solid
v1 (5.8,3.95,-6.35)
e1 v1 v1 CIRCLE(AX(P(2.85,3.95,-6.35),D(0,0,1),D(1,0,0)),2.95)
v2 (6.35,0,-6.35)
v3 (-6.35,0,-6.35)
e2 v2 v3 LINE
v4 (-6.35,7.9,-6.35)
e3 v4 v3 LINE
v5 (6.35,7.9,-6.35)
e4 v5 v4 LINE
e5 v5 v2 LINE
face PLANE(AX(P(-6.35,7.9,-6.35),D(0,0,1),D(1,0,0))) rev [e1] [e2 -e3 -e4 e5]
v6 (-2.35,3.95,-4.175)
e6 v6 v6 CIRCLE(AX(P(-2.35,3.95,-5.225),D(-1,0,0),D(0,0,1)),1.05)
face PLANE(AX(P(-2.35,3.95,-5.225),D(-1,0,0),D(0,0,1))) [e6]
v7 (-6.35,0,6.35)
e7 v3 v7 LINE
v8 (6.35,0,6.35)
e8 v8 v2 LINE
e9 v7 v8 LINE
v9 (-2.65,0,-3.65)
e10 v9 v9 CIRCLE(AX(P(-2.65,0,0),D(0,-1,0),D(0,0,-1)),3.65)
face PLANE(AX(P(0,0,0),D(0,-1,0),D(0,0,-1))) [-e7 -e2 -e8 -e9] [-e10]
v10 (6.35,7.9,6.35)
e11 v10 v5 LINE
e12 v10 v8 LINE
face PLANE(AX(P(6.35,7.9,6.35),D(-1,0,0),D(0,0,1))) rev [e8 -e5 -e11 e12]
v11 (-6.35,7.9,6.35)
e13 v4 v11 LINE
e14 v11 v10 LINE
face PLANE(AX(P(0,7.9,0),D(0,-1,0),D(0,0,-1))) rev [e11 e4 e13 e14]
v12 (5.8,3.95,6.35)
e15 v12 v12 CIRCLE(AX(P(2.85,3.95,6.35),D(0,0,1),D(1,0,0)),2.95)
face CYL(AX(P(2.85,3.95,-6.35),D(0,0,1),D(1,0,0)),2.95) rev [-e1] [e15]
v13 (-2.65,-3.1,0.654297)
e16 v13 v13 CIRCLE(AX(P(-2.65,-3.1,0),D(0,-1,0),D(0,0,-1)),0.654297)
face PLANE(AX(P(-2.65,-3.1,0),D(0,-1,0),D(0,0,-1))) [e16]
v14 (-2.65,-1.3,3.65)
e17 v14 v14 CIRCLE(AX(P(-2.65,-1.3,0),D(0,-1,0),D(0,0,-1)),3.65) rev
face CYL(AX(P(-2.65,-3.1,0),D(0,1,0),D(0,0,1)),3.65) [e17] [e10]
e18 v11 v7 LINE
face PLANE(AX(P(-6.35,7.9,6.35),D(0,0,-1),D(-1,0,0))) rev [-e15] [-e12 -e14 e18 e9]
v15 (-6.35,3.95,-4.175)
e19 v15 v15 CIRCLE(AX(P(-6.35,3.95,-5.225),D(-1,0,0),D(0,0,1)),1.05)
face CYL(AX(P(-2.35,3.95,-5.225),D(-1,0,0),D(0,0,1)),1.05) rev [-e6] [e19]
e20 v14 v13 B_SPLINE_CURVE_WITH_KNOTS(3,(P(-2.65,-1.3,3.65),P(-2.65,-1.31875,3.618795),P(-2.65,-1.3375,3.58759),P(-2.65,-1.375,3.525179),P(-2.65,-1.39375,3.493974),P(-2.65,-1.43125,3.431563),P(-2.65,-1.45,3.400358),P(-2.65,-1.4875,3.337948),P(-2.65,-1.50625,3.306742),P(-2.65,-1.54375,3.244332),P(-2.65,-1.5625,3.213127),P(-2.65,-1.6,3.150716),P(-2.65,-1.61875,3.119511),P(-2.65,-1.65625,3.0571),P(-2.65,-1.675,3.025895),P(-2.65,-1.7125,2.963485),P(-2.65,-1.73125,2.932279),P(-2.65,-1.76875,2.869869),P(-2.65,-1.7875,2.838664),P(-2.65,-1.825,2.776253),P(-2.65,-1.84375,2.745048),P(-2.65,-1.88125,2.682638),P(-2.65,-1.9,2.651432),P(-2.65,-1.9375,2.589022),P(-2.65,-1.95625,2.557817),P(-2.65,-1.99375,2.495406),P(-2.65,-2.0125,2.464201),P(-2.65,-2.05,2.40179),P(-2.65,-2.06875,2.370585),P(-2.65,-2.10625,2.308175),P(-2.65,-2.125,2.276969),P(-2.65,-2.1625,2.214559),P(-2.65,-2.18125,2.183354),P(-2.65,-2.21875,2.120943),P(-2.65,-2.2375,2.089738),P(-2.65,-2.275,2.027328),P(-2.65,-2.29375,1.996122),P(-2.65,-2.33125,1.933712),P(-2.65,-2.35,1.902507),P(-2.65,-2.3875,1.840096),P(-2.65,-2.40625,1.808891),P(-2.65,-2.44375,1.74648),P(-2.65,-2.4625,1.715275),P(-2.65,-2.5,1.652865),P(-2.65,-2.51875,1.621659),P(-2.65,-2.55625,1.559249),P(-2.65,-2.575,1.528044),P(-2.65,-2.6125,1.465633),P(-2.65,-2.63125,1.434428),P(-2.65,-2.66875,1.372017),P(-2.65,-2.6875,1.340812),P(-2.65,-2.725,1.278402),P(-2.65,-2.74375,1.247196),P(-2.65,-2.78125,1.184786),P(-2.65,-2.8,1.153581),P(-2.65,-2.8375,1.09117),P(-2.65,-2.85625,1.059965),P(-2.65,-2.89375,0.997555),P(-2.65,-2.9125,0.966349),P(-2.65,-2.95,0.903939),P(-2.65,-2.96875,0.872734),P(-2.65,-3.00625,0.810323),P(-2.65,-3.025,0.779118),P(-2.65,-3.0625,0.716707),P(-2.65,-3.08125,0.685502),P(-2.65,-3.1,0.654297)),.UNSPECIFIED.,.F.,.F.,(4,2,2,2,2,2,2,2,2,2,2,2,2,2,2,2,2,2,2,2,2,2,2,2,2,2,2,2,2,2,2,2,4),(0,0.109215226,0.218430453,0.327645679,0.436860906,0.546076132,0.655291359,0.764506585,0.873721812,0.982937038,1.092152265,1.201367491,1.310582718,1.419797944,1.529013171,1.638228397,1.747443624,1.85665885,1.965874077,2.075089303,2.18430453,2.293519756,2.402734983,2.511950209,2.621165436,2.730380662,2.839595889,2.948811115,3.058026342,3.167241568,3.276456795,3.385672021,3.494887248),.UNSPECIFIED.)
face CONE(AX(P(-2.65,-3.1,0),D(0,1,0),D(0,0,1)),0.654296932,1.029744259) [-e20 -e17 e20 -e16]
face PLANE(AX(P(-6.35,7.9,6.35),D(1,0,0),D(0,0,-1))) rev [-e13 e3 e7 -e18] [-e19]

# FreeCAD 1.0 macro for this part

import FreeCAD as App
import Part
import Sketcher

V = App.Vector
Q = App.Units.Quantity


def edges_at(feature, points):
    """Names of the edges that pass closest to the given points."""
    edges = feature.Shape.Edges
    near = lambda p: min(range(len(edges)), key=lambda i: edges[i].distToShape(Part.Vertex(*p))[0])
    return sorted({f"Edge{near(p) + 1}" for p in points})

doc = App.newDocument("Part")
body = doc.addObject("PartDesign::Body", "Body")

# Sketch on XZ plane
sketch1 = doc.addObject("Sketcher::SketchObject", "Sketch")
body.addObject(sketch1)
sketch1.AttachmentSupport = (doc.XZ_Plane, [""])
sketch1.MapMode = "FlatFace"
sketch1.addGeometry([
    Part.LineSegment(V(-6, -6, 0), V(-6, 6, 0)),
    Part.LineSegment(V(-6, 6, 0), V(6, 6, 0)),
    Part.LineSegment(V(6, 6, 0), V(6, -6, 0)),
    Part.LineSegment(V(6, -6, 0), V(-6, -6, 0)),
], False)
sketch1.addConstraint([
    Sketcher.Constraint("Coincident", 0, 2, 1, 1),
    Sketcher.Constraint("Coincident", 1, 2, 2, 1),
    Sketcher.Constraint("Coincident", 2, 2, 3, 1),
    Sketcher.Constraint("Coincident", 3, 2, 0, 1),
    Sketcher.Constraint("Vertical", 0),
    Sketcher.Constraint("Horizontal", 1),
    Sketcher.Constraint("Vertical", 2),
    Sketcher.Constraint("Horizontal", 3),
    Sketcher.Constraint("Symmetric", 0, 2, 2, 2, -1, 1),
    Sketcher.Constraint("Equal", 3, 0),
    Sketcher.Constraint("DistanceX", 1, 1, 1, 2, Q("12.7 mm")),
])
pad1 = doc.addObject("PartDesign::Pad", "Pad")
body.addObject(pad1)
pad1.Profile = sketch1
pad1.Length = 7.9
pad1.Reversed = True

# Sketch on XY plane
sketch2 = doc.addObject("Sketcher::SketchObject", "Sketch001")
body.addObject(sketch2)
sketch2.AttachmentSupport = (doc.XY_Plane, [""])
sketch2.MapMode = "FlatFace"
sketch2.AttachmentOffset = App.Placement(V(0, 0, 6.35), App.Rotation())
sketch2.addGeometry(Part.Circle(V(2.9, 4, 0), V(0, 0, 1), 3), False)
sketch2.addConstraint([
    Sketcher.Constraint("Diameter", 0, Q("5.9 mm")),
    Sketcher.Constraint("DistanceX", -1, 1, 0, 3, Q("2.85 mm")),
    Sketcher.Constraint("DistanceY", -1, 1, 0, 3, Q("3.95 mm")),
])
pocket1 = doc.addObject("PartDesign::Pocket", "Pocket")
body.addObject(pocket1)
pocket1.Profile = sketch2
pocket1.Type = "ThroughAll"

# Sketch on XZ plane
sketch3 = doc.addObject("Sketcher::SketchObject", "Sketch002")
body.addObject(sketch3)
sketch3.AttachmentSupport = (doc.XZ_Plane, [""])
sketch3.MapMode = "FlatFace"
sketch3.addGeometry(Part.Circle(V(-2.6, 0, 0), V(0, 0, 1), 3.6), False)
sketch3.addConstraint([
    Sketcher.Constraint("PointOnObject", 0, 3, -1),
    Sketcher.Constraint("Diameter", 0, Q("7.3 mm")),
    Sketcher.Constraint("DistanceX", 0, 3, -1, 1, Q("2.65 mm")),
])
pad2 = doc.addObject("PartDesign::Pad", "Pad001")
body.addObject(pad2)
pad2.Profile = sketch3
pad2.Length = 3.1
doc.recompute()

chamfer = doc.addObject("PartDesign::Chamfer", "Chamfer")
body.addObject(chamfer)
chamfer.Base = (pad2, edges_at(pad2, [(-2.65, -3.1, 3.65)]))
chamfer.ChamferType = "Two distances"
chamfer.Size = 1.8
chamfer.Size2 = 2.995703

# Sketch on YZ plane
sketch4 = doc.addObject("Sketcher::SketchObject", "Sketch003")
body.addObject(sketch4)
sketch4.AttachmentSupport = (doc.YZ_Plane, [""])
sketch4.MapMode = "FlatFace"
sketch4.AttachmentOffset = App.Placement(V(0, 0, -6.35), App.Rotation())
sketch4.addGeometry(Part.Circle(V(4, -5.2, 0), V(0, 0, 1), 1.1), False)
sketch4.addConstraint([
    Sketcher.Constraint("Diameter", 0, Q("2.1 mm")),
    Sketcher.Constraint("DistanceX", -1, 1, 0, 3, Q("3.95 mm")),
    Sketcher.Constraint("DistanceY", 0, 3, -1, 1, Q("5.225 mm")),
])
pocket2 = doc.addObject("PartDesign::Pocket", "Pocket001")
body.addObject(pocket2)
pocket2.Profile = sketch4
pocket2.Length = 4
pocket2.Reversed = True

doc.recompute()
